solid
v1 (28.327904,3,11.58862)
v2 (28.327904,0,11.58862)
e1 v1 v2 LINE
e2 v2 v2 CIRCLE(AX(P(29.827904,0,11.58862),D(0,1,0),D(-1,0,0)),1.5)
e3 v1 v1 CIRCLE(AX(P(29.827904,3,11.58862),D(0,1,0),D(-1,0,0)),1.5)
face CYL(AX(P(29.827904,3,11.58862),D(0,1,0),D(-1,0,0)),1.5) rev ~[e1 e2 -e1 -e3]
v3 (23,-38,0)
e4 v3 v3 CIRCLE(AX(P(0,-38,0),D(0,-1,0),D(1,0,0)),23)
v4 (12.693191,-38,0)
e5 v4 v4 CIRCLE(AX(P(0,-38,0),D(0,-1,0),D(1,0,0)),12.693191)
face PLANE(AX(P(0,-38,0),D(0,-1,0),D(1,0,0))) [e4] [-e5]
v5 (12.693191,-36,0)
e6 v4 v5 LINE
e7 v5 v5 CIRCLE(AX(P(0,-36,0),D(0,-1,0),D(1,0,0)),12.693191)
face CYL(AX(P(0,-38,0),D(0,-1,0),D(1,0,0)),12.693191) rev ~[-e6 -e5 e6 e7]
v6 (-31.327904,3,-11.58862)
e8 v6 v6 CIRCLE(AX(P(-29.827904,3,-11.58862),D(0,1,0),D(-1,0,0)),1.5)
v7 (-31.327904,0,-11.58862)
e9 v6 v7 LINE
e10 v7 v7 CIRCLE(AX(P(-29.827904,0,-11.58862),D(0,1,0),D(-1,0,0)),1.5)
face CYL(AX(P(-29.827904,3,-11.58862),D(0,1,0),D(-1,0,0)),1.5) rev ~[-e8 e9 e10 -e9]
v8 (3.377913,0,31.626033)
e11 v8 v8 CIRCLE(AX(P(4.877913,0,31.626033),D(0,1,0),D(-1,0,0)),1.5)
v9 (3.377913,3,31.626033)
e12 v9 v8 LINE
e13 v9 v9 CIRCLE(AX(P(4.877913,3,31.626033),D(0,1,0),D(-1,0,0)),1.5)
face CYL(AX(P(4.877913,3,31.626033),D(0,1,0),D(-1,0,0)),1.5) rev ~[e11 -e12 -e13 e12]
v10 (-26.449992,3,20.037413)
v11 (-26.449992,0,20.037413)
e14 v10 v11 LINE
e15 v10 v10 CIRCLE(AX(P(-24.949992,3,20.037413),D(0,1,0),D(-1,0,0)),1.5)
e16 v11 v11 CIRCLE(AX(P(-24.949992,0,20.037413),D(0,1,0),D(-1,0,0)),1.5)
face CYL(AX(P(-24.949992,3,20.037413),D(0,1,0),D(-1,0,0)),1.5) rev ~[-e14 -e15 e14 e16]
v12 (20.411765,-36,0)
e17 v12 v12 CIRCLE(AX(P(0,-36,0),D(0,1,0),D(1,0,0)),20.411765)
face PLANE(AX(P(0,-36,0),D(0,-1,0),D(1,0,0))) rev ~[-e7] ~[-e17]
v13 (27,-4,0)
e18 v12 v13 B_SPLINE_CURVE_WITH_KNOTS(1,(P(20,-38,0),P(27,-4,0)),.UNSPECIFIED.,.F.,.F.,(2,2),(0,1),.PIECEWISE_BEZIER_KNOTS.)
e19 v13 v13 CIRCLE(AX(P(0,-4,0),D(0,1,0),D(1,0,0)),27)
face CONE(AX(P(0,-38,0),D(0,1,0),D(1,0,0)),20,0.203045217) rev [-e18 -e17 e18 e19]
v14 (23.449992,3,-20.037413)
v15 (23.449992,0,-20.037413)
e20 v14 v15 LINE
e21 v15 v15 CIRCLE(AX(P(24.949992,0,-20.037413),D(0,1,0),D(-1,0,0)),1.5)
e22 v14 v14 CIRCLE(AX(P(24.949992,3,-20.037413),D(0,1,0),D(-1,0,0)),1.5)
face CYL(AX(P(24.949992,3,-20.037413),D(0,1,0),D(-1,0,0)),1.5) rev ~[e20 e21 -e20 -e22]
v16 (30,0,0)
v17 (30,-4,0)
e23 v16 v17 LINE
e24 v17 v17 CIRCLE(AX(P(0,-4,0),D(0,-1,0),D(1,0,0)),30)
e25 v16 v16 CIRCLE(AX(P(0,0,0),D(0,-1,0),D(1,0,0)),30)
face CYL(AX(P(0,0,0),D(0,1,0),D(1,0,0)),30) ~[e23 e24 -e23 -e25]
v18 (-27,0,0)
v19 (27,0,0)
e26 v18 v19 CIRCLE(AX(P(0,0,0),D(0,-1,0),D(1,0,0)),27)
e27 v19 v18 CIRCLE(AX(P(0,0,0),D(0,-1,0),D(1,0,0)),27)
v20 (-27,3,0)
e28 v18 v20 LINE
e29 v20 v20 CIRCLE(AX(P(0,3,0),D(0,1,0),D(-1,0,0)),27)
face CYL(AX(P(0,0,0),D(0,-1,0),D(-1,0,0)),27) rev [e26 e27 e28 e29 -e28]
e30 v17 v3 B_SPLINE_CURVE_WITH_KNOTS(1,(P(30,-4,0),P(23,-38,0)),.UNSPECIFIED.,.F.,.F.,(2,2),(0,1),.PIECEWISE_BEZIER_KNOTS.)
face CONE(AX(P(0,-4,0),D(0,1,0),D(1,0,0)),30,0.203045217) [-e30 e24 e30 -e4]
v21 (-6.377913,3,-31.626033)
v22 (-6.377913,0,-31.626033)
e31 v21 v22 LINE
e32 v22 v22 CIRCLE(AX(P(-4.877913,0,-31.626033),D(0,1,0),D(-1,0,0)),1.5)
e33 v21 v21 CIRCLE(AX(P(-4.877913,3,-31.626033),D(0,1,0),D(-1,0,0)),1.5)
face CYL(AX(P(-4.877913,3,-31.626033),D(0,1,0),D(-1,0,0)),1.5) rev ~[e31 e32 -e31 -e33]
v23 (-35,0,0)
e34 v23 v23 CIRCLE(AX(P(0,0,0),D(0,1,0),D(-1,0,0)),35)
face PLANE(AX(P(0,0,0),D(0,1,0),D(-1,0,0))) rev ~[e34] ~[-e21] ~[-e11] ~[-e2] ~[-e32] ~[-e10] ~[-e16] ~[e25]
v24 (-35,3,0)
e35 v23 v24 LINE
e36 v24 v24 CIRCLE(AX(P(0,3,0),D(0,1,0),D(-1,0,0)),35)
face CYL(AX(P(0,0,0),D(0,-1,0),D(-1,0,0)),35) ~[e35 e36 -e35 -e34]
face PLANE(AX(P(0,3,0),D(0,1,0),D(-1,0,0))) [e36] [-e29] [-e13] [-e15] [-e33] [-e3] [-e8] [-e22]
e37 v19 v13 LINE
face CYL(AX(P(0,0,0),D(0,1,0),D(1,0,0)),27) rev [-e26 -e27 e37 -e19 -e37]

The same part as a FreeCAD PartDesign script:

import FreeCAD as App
import Part
import Sketcher

doc = App.newDocument("Part")
body = doc.addObject("PartDesign::Body", "Body")

sketch1 = body.newObject("Sketcher::SketchObject", "Sketch")
sketch1.AttachmentSupport = (doc.getObject("XZ_Plane"), [""])
sketch1.MapMode = "FlatFace"
sketch1.addGeometry([
    Part.Circle(App.Vector(0, 0, 0), App.Vector(0, 0, 1), 30),
    Part.Circle(App.Vector(0, 0, 0), App.Vector(0, 0, 1), 27),
], False)
sketch1.addConstraint([
    Sketcher.Constraint("Coincident", 0, 3, -1, 1),
    Sketcher.Constraint("Coincident", 1, 3, -1, 1),
    Sketcher.Constraint("Diameter", 0, 60.0),
    Sketcher.Constraint("Diameter", 1, 54.0),
])
pad1 = body.newObject("PartDesign::Pad", "Pad")
pad1.Profile = sketch1
pad1.Length = 4

sketch2 = body.newObject("Sketcher::SketchObject", "Sketch001")
sketch2.AttachmentSupport = (doc.getObject("XZ_Plane"), [""])
sketch2.MapMode = "FlatFace"
sketch2.AttachmentOffset = App.Placement(App.Vector(0, 0, 4), App.Rotation())
sketch2.addGeometry(Part.Circle(App.Vector(0, 0, 0), App.Vector(0, 0, 1), 30), False)
sketch2.addConstraint([
    Sketcher.Constraint("Coincident", 0, 3, -1, 1),
    Sketcher.Constraint("Diameter", 0, 60.0),
])

sketch3 = body.newObject("Sketcher::SketchObject", "Sketch002")
sketch3.AttachmentSupport = (doc.getObject("XZ_Plane"), [""])
sketch3.MapMode = "FlatFace"
sketch3.AttachmentOffset = App.Placement(App.Vector(0, 0, 38), App.Rotation())
sketch3.addGeometry(Part.Circle(App.Vector(0, 0, 0), App.Vector(0, 0, 1), 23), False)
sketch3.addConstraint([
    Sketcher.Constraint("Coincident", 0, 3, -1, 1),
    Sketcher.Constraint("Diameter", 0, 46.0),
])

additiveloft = body.newObject("PartDesign::AdditiveLoft", "AdditiveLoft")
additiveloft.Profile = sketch2
additiveloft.Sections = [sketch3]

sketch4 = body.newObject("Sketcher::SketchObject", "Sketch003")
sketch4.AttachmentSupport = (doc.getObject("XZ_Plane"), [""])
sketch4.MapMode = "FlatFace"
sketch4.AttachmentOffset = App.Placement(App.Vector(0, 0, 38), App.Rotation())
sketch4.addGeometry(Part.Circle(App.Vector(0, 0, 0), App.Vector(0, 0, 1), 20), False)
sketch4.addConstraint([
    Sketcher.Constraint("Coincident", 0, 3, -1, 1),
    Sketcher.Constraint("Diameter", 0, 40.0),
])

sketch5 = body.newObject("Sketcher::SketchObject", "Sketch004")
sketch5.AttachmentSupport = (doc.getObject("XZ_Plane"), [""])
sketch5.MapMode = "FlatFace"
sketch5.AttachmentOffset = App.Placement(App.Vector(0, 0, 4), App.Rotation())
sketch5.addGeometry(Part.Circle(App.Vector(0, 0, 0), App.Vector(0, 0, 1), 27), False)
sketch5.addConstraint([
    Sketcher.Constraint("Coincident", 0, 3, -1, 1),
    Sketcher.Constraint("Diameter", 0, 54.0),
])

subtractiveloft = body.newObject("PartDesign::SubtractiveLoft", "SubtractiveLoft")
subtractiveloft.Profile = sketch4
subtractiveloft.Sections = [sketch5]

sketch6 = body.newObject("Sketcher::SketchObject", "Sketch005")
sketch6.AttachmentSupport = (doc.getObject("XZ_Plane"), [""])
sketch6.MapMode = "FlatFace"
sketch6.AttachmentOffset = App.Placement(App.Vector(0, 0, 38), App.Rotation())
sketch6.addGeometry([
    Part.Circle(App.Vector(0, 0, 0), App.Vector(0, 0, 1), 22),
    Part.Circle(App.Vector(0, 0, 0), App.Vector(0, 0, 1), 13),
], False)
sketch6.addConstraint([
    Sketcher.Constraint("Coincident", 0, 3, -1, 1),
    Sketcher.Constraint("Coincident", 1, 3, -1, 1),
    Sketcher.Constraint("Diameter", 0, 44.807334),
    Sketcher.Constraint("Diameter", 1, 25.386382),
])
pad2 = body.newObject("PartDesign::Pad", "Pad001")
pad2.Profile = sketch6
pad2.Length = 2
pad2.Reversed = True

sketch7 = body.newObject("Sketcher::SketchObject", "Sketch006")
sketch7.AttachmentSupport = (doc.getObject("XZ_Plane"), [""])
sketch7.MapMode = "FlatFace"
sketch7.addGeometry([
    Part.Circle(App.Vector(0, 0, 0), App.Vector(0, 0, 1), 35),
    Part.Circle(App.Vector(0, 0, 0), App.Vector(0, 0, 1), 27),
], False)
sketch7.addConstraint([
    Sketcher.Constraint("Coincident", 0, 3, -1, 1),
    Sketcher.Constraint("Coincident", 1, 3, -1, 1),
    Sketcher.Constraint("Diameter", 0, 70.0),
    Sketcher.Constraint("Diameter", 1, 54.0),
])
pad3 = body.newObject("PartDesign::Pad", "Pad002")
pad3.Profile = sketch7
pad3.Length = 3
pad3.Reversed = True

sketch8 = body.newObject("Sketcher::SketchObject", "Sketch007")
sketch8.AttachmentSupport = (doc.getObject("XZ_Plane"), [""])
sketch8.MapMode = "FlatFace"
sketch8.AttachmentOffset = App.Placement(App.Vector(0, 0, -3), App.Rotation())
sketch8.addGeometry([
    Part.Circle(App.Vector(4.9, 31.6, 0), App.Vector(0, 0, 1), 1.5),
    Part.Circle(App.Vector(-24.9, 20, 0), App.Vector(0, 0, 1), 1.5),
    Part.Circle(App.Vector(-29.8, -11.6, 0), App.Vector(0, 0, 1), 1.5),
    Part.Circle(App.Vector(-4.9, -31.6, 0), App.Vector(0, 0, 1), 1.5),
    Part.Circle(App.Vector(24.9, -20, 0), App.Vector(0, 0, 1), 1.5),
    Part.Circle(App.Vector(29.8, 11.6, 0), App.Vector(0, 0, 1), 1.5),
], False)
sketch8.addConstraint([
    Sketcher.Constraint("Equal", 0, 1),
    Sketcher.Constraint("Equal", 1, 2),
    Sketcher.Constraint("Equal", 2, 3),
    Sketcher.Constraint("Equal", 3, 4),
    Sketcher.Constraint("Equal", 4, 5),
    Sketcher.Constraint("Symmetric", 0, 3, 3, 3, -1, 1),
    Sketcher.Constraint("Symmetric", 1, 3, 4, 3, -1, 1),
    Sketcher.Constraint("Symmetric", 2, 3, 5, 3, -1, 1),
    Sketcher.Constraint("Diameter", 0, 3.0),
    Sketcher.Constraint("DistanceY", 2, 3, -1, 1, 11.58862),
    Sketcher.Constraint("DistanceY", 1, 3, 0, 3, 11.58862),
    Sketcher.Constraint("DistanceX", 2, 3, 1, 3, 4.877912),
    Sketcher.Constraint("DistanceX", 2, 3, 3, 3, 24.949991),
    Sketcher.Constraint("DistanceX", -1, 1, 0, 3, 4.877913),
    Sketcher.Constraint("DistanceY", -1, 1, 0, 3, 31.626033),
])
pocket1 = body.newObject("PartDesign::Pocket", "Pocket")
pocket1.Profile = sketch8
pocket1.Length = 25
pocket1.Reversed = True

doc.recompute()
